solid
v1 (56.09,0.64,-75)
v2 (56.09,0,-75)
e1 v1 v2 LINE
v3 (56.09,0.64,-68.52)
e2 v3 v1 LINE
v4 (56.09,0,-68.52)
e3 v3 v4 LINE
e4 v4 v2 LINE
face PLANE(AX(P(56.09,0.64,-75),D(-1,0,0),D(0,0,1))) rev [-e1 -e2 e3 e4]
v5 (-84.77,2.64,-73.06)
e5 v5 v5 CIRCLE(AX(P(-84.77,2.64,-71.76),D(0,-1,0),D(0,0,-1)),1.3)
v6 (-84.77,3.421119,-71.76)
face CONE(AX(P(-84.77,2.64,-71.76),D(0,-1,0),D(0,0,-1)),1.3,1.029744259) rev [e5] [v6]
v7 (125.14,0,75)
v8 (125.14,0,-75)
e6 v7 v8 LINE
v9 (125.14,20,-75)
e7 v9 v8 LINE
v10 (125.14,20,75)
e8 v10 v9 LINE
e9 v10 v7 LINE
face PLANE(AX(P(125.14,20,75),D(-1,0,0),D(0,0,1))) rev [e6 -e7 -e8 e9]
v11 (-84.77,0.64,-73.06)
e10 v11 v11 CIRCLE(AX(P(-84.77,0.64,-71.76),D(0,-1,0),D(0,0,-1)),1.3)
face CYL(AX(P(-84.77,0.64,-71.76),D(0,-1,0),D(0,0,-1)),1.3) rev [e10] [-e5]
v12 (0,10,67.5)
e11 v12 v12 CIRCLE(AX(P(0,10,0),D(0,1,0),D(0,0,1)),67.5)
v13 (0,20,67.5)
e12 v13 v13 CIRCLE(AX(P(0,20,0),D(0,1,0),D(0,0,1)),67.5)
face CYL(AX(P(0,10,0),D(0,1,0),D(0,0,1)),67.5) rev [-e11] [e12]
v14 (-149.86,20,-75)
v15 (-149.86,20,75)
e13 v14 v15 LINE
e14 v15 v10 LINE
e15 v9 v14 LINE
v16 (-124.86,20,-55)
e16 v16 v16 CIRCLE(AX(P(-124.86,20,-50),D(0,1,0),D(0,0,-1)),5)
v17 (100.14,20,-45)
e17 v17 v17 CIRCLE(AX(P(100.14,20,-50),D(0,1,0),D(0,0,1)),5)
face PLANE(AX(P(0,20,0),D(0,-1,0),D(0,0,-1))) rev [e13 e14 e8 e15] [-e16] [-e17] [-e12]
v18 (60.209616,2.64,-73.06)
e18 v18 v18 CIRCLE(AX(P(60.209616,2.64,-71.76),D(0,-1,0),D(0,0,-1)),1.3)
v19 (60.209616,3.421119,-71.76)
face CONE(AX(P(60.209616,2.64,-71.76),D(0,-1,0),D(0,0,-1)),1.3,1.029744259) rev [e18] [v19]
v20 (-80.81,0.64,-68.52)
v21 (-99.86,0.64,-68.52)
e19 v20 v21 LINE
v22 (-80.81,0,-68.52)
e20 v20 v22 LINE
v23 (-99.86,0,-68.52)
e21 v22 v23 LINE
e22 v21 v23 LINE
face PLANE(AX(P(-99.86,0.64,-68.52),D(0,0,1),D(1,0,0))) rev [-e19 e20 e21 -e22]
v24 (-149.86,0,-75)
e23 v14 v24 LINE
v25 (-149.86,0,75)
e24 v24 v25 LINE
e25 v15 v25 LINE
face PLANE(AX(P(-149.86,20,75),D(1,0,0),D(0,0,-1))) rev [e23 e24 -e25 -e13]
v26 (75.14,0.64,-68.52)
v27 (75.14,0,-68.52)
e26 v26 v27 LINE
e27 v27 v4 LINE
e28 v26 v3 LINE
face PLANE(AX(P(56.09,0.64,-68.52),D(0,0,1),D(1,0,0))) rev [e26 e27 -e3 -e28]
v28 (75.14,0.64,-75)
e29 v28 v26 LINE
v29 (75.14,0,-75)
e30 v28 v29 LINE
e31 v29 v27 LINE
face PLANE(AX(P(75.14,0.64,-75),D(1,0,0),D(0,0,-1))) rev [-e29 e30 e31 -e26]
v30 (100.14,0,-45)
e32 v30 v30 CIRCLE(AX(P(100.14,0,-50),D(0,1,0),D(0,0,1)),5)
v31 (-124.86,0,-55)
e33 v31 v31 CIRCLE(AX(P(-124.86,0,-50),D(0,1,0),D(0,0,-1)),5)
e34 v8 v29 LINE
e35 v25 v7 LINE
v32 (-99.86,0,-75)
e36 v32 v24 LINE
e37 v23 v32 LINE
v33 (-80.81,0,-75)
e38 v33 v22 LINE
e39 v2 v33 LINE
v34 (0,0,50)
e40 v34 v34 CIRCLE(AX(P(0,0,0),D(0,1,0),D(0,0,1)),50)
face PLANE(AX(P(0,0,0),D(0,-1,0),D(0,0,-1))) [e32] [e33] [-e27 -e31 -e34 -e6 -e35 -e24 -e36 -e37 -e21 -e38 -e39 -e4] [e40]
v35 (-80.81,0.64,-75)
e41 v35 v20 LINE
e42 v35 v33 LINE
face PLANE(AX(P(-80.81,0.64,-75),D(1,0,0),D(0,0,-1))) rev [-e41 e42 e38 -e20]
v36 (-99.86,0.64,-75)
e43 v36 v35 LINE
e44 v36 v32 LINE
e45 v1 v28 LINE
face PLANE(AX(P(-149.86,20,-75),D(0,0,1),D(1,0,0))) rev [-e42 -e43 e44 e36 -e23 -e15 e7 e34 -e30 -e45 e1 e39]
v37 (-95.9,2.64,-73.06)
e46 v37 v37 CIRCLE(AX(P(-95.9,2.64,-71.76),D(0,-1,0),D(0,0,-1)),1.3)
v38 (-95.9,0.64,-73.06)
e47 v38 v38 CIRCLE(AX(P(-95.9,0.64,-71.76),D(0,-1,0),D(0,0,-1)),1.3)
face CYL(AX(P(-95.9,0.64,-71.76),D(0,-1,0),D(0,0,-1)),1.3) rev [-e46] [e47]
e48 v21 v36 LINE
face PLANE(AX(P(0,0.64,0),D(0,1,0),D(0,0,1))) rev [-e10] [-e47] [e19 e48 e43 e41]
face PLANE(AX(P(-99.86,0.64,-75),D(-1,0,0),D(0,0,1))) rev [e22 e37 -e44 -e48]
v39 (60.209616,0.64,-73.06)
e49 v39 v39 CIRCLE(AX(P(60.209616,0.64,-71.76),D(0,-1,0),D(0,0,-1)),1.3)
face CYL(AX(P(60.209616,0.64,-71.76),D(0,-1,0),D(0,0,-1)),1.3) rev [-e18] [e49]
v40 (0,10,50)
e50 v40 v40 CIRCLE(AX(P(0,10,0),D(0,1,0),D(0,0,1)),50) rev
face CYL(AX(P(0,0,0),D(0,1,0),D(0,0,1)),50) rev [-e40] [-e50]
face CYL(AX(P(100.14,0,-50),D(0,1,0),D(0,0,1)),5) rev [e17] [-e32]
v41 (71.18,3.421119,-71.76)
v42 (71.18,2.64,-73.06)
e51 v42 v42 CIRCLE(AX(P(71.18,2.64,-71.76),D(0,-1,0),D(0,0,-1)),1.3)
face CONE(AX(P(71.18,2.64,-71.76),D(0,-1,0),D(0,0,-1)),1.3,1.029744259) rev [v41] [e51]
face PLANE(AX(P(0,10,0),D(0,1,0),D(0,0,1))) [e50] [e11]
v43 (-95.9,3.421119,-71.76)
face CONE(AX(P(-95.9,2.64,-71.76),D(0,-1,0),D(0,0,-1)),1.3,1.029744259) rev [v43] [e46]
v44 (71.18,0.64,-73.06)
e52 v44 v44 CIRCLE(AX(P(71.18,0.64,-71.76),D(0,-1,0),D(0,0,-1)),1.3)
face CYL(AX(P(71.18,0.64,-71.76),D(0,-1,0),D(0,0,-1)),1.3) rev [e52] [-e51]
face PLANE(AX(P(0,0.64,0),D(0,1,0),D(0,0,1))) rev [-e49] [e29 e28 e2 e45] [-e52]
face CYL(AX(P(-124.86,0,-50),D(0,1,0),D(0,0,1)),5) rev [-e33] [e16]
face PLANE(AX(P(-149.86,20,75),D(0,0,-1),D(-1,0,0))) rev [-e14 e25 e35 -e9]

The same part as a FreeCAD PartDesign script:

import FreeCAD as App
import Part
import Sketcher
from FreeCAD import Vector

doc = App.newDocument("Part")
body = doc.addObject("PartDesign::Body", "Body")

# Sketch on XZ plane
sketch1 = doc.addObject("Sketcher::SketchObject", "Sketch")
body.addObject(sketch1)
sketch1.AttachmentSupport = (doc.XZ_Plane, [""])
sketch1.MapMode = "FlatFace"
sketch1.addGeometry(Part.LineSegment(Vector(-149.86, -75, 0), Vector(-149.86, 75, 0)), False)
sketch1.addGeometry(Part.LineSegment(Vector(-149.86, 75, 0), Vector(125.14, 75, 0)), False)
sketch1.addGeometry(Part.LineSegment(Vector(125.14, 75, 0), Vector(125.14, -75, 0)), False)
sketch1.addGeometry(Part.LineSegment(Vector(125.14, -75, 0), Vector(-149.86, -75, 0)), False)
sketch1.addGeometry(Part.Circle(Vector(0, 0, 0), Vector(0, 0, 1), 5), False)
sketch1.addConstraint(Sketcher.Constraint("Coincident", 0, 2, 1, 1))
sketch1.addConstraint(Sketcher.Constraint("Coincident", 1, 2, 2, 1))
sketch1.addConstraint(Sketcher.Constraint("Coincident", 2, 2, 3, 1))
sketch1.addConstraint(Sketcher.Constraint("Coincident", 3, 2, 0, 1))
sketch1.addConstraint(Sketcher.Constraint("Vertical", 0))
sketch1.addConstraint(Sketcher.Constraint("Horizontal", 1))
sketch1.addConstraint(Sketcher.Constraint("Vertical", 2))
sketch1.addConstraint(Sketcher.Constraint("Horizontal", 3))
sketch1.addConstraint(Sketcher.Constraint("Coincident", 4, 3, -1, 1))
sketch1.addConstraint(Sketcher.Constraint("Diameter", 4, 10.0))
sketch1.addConstraint(Sketcher.Constraint("DistanceX", 1, 1, 1, 2, 275.0))
sketch1.addConstraint(Sketcher.Constraint("DistanceY", 0, 1, 0, 2, 150.0))
sketch1.addConstraint(Sketcher.Constraint("DistanceY", -1, 1, 0, 2, 75.0))
sketch1.addConstraint(Sketcher.Constraint("DistanceX", 0, 2, -1, 1, 149.86))
pad1 = doc.addObject("PartDesign::Pad", "Pad")
body.addObject(pad1)
pad1.Profile = sketch1
pad1.Length = 20
pad1.Reversed = True

# Sketch on XZ plane
sketch2 = doc.addObject("Sketcher::SketchObject", "Sketch001")
body.addObject(sketch2)
sketch2.AttachmentSupport = (doc.XZ_Plane, [""])
sketch2.MapMode = "FlatFace"
sketch2.AttachmentOffset = App.Placement(Vector(0, 0, -20), App.Rotation())
sketch2.addGeometry(Part.Circle(Vector(0, 0, 0), Vector(0, 0, 1), 50), False)
sketch2.addConstraint(Sketcher.Constraint("Coincident", 0, 3, -1, 1))
sketch2.addConstraint(Sketcher.Constraint("Diameter", 0, 100.0))
pocket1 = doc.addObject("PartDesign::Pocket", "Pocket")
body.addObject(pocket1)
pocket1.Profile = sketch2
pocket1.Type = "ThroughAll"
pocket1.Reversed = True

# Sketch on XZ plane
sketch3 = doc.addObject("Sketcher::SketchObject", "Sketch002")
body.addObject(sketch3)
sketch3.AttachmentSupport = (doc.XZ_Plane, [""])
sketch3.MapMode = "FlatFace"
sketch3.AttachmentOffset = App.Placement(Vector(0, 0, -20), App.Rotation())
sketch3.addGeometry(Part.Circle(Vector(0, 0, 0), Vector(0, 0, 1), 67.5), False)
sketch3.addConstraint(Sketcher.Constraint("Coincident", 0, 3, -1, 1))
sketch3.addConstraint(Sketcher.Constraint("Diameter", 0, 135.0))
pocket2 = doc.addObject("PartDesign::Pocket", "Pocket001")
body.addObject(pocket2)
pocket2.Profile = sketch3
pocket2.Length = 10
pocket2.Reversed = True

# Sketch on XZ plane
sketch4 = doc.addObject("Sketcher::SketchObject", "Sketch003")
body.addObject(sketch4)
sketch4.AttachmentSupport = (doc.XZ_Plane, [""])
sketch4.MapMode = "FlatFace"
sketch4.AttachmentOffset = App.Placement(Vector(0, 0, -20), App.Rotation())
sketch4.addGeometry(Part.Circle(Vector(100.14, -50, 0), Vector(0, 0, 1), 5), False)
sketch4.addGeometry(Part.Circle(Vector(-124.86, -50, 0), Vector(0, 0, 1), 5), False)
sketch4.addConstraint(Sketcher.Constraint("Equal", 0, 1))
sketch4.addConstraint(Sketcher.Constraint("Horizontal", 0, 3, 1, 3))
sketch4.addConstraint(Sketcher.Constraint("Diameter", 0, 10.0))
sketch4.addConstraint(Sketcher.Constraint("DistanceY", 0, 3, -1, 1, 50.0))
sketch4.addConstraint(Sketcher.Constraint("DistanceX", 1, 3, 0, 3, 225.0))
sketch4.addConstraint(Sketcher.Constraint("DistanceX", -1, 1, 0, 3, 100.14))
pocket3 = doc.addObject("PartDesign::Pocket", "Pocket002")
body.addObject(pocket3)
pocket3.Profile = sketch4
pocket3.Type = "ThroughAll"
pocket3.Reversed = True

# Sketch on XZ plane
sketch5 = doc.addObject("Sketcher::SketchObject", "Sketch004")
body.addObject(sketch5)
sketch5.AttachmentSupport = (doc.XZ_Plane, [""])
sketch5.MapMode = "FlatFace"
sketch5.addGeometry(Part.LineSegment(Vector(-99.86, -68.52, 0), Vector(-99.86, -75, 0)), False)
sketch5.addGeometry(Part.LineSegment(Vector(-99.86, -75, 0), Vector(-80.81, -75, 0)), False)
sketch5.addGeometry(Part.LineSegment(Vector(-80.81, -75, 0), Vector(-80.81, -68.52, 0)), False)
sketch5.addGeometry(Part.LineSegment(Vector(-80.81, -68.52, 0), Vector(-99.86, -68.52, 0)), False)
sketch5.addGeometry(Part.LineSegment(Vector(56.09, -68.52, 0), Vector(56.09, -75, 0)), False)
sketch5.addGeometry(Part.LineSegment(Vector(56.09, -75, 0), Vector(75.14, -75, 0)), False)
sketch5.addGeometry(Part.LineSegment(Vector(75.14, -75, 0), Vector(75.14, -68.52, 0)), False)
sketch5.addGeometry(Part.LineSegment(Vector(75.14, -68.52, 0), Vector(56.09, -68.52, 0)), False)
sketch5.addConstraint(Sketcher.Constraint("Coincident", 0, 2, 1, 1))
sketch5.addConstraint(Sketcher.Constraint("Coincident", 1, 2, 2, 1))
sketch5.addConstraint(Sketcher.Constraint("Coincident", 2, 2, 3, 1))
sketch5.addConstraint(Sketcher.Constraint("Coincident", 3, 2, 0, 1))
sketch5.addConstraint(Sketcher.Constraint("Coincident", 4, 2, 5, 1))
sketch5.addConstraint(Sketcher.Constraint("Coincident", 5, 2, 6, 1))
sketch5.addConstraint(Sketcher.Constraint("Coincident", 6, 2, 7, 1))
sketch5.addConstraint(Sketcher.Constraint("Coincident", 7, 2, 4, 1))
sketch5.addConstraint(Sketcher.Constraint("Vertical", 0))
sketch5.addConstraint(Sketcher.Constraint("Horizontal", 1))
sketch5.addConstraint(Sketcher.Constraint("Vertical", 2))
sketch5.addConstraint(Sketcher.Constraint("Horizontal", 3))
sketch5.addConstraint(Sketcher.Constraint("Vertical", 4))
sketch5.addConstraint(Sketcher.Constraint("Horizontal", 5))
sketch5.addConstraint(Sketcher.Constraint("Vertical", 6))
sketch5.addConstraint(Sketcher.Constraint("Horizontal", 7))
sketch5.addConstraint(Sketcher.Constraint("Horizontal", 1, 2, 4, 2))
sketch5.addConstraint(Sketcher.Constraint("Horizontal", 3, 2, 6, 2))
sketch5.addConstraint(Sketcher.Constraint("Equal", 3, 5))
sketch5.addConstraint(Sketcher.Constraint("DistanceY", 0, 2, -1, 1, 75.0))
sketch5.addConstraint(Sketcher.Constraint("DistanceX", 0, 2, 5, 2, 175.0))
sketch5.addConstraint(Sketcher.Constraint("DistanceX", 1, 1, 1, 2, 19.05))
sketch5.addConstraint(Sketcher.Constraint("DistanceY", 0, 2, 0, 1, 6.48))
sketch5.addConstraint(Sketcher.Constraint("DistanceX", 0, 2, -1, 1, 99.86))
pocket4 = doc.addObject("PartDesign::Pocket", "Pocket003")
body.addObject(pocket4)
pocket4.Profile = sketch5
pocket4.Length = 0.64

# Sketch on XZ plane
sketch6 = doc.addObject("Sketcher::SketchObject", "Sketch005")
body.addObject(sketch6)
sketch6.AttachmentSupport = (doc.XZ_Plane, [""])
sketch6.MapMode = "FlatFace"
sketch6.AttachmentOffset = App.Placement(Vector(0, 0, -0.64), App.Rotation())
sketch6.addGeometry(Part.Circle(Vector(-95.9, -71.76, 0), Vector(0, 0, 1), 1.3), False)
sketch6.addGeometry(Part.Circle(Vector(-84.77, -71.76, 0), Vector(0, 0, 1), 1.3), False)
sketch6.addGeometry(Part.Circle(Vector(71.18, -71.76, 0), Vector(0, 0, 1), 1.3), False)
sketch6.addGeometry(Part.Circle(Vector(60.209616, -71.76, 0), Vector(0, 0, 1), 1.3), False)
sketch6.addConstraint(Sketcher.Constraint("Equal", 0, 1))
sketch6.addConstraint(Sketcher.Constraint("Equal", 1, 2))
sketch6.addConstraint(Sketcher.Constraint("Equal", 2, 3))
sketch6.addConstraint(Sketcher.Constraint("Horizontal", 0, 3, 1, 3))
sketch6.addConstraint(Sketcher.Constraint("Horizontal", 1, 3, 2, 3))
sketch6.addConstraint(Sketcher.Constraint("Horizontal", 2, 3, 3, 3))
sketch6.addConstraint(Sketcher.Constraint("Diameter", 0, 2.6))
sketch6.addConstraint(Sketcher.Constraint("DistanceX", 0, 3, -1, 1, 95.9))
sketch6.addConstraint(Sketcher.Constraint("DistanceY", 0, 3, -1, 1, 71.76))
sketch6.addConstraint(Sketcher.Constraint("DistanceX", 1, 3, -1, 1, 84.77))
sketch6.addConstraint(Sketcher.Constraint("DistanceX", -1, 1, 2, 3, 71.18))
sketch6.addConstraint(Sketcher.Constraint("DistanceX", -1, 1, 3, 3, 60.209616))
doc.recompute()
hole = doc.addObject("PartDesign::Hole", "Hole")
body.addObject(hole)
hole.Profile = sketch6
hole.ThreadType = "None"
hole.Diameter = 2.6
hole.DepthType = "Dimension"
hole.Depth = 2
hole.DrillPoint = "Angled"
hole.DrillPointAngle = 118

doc.recompute()
